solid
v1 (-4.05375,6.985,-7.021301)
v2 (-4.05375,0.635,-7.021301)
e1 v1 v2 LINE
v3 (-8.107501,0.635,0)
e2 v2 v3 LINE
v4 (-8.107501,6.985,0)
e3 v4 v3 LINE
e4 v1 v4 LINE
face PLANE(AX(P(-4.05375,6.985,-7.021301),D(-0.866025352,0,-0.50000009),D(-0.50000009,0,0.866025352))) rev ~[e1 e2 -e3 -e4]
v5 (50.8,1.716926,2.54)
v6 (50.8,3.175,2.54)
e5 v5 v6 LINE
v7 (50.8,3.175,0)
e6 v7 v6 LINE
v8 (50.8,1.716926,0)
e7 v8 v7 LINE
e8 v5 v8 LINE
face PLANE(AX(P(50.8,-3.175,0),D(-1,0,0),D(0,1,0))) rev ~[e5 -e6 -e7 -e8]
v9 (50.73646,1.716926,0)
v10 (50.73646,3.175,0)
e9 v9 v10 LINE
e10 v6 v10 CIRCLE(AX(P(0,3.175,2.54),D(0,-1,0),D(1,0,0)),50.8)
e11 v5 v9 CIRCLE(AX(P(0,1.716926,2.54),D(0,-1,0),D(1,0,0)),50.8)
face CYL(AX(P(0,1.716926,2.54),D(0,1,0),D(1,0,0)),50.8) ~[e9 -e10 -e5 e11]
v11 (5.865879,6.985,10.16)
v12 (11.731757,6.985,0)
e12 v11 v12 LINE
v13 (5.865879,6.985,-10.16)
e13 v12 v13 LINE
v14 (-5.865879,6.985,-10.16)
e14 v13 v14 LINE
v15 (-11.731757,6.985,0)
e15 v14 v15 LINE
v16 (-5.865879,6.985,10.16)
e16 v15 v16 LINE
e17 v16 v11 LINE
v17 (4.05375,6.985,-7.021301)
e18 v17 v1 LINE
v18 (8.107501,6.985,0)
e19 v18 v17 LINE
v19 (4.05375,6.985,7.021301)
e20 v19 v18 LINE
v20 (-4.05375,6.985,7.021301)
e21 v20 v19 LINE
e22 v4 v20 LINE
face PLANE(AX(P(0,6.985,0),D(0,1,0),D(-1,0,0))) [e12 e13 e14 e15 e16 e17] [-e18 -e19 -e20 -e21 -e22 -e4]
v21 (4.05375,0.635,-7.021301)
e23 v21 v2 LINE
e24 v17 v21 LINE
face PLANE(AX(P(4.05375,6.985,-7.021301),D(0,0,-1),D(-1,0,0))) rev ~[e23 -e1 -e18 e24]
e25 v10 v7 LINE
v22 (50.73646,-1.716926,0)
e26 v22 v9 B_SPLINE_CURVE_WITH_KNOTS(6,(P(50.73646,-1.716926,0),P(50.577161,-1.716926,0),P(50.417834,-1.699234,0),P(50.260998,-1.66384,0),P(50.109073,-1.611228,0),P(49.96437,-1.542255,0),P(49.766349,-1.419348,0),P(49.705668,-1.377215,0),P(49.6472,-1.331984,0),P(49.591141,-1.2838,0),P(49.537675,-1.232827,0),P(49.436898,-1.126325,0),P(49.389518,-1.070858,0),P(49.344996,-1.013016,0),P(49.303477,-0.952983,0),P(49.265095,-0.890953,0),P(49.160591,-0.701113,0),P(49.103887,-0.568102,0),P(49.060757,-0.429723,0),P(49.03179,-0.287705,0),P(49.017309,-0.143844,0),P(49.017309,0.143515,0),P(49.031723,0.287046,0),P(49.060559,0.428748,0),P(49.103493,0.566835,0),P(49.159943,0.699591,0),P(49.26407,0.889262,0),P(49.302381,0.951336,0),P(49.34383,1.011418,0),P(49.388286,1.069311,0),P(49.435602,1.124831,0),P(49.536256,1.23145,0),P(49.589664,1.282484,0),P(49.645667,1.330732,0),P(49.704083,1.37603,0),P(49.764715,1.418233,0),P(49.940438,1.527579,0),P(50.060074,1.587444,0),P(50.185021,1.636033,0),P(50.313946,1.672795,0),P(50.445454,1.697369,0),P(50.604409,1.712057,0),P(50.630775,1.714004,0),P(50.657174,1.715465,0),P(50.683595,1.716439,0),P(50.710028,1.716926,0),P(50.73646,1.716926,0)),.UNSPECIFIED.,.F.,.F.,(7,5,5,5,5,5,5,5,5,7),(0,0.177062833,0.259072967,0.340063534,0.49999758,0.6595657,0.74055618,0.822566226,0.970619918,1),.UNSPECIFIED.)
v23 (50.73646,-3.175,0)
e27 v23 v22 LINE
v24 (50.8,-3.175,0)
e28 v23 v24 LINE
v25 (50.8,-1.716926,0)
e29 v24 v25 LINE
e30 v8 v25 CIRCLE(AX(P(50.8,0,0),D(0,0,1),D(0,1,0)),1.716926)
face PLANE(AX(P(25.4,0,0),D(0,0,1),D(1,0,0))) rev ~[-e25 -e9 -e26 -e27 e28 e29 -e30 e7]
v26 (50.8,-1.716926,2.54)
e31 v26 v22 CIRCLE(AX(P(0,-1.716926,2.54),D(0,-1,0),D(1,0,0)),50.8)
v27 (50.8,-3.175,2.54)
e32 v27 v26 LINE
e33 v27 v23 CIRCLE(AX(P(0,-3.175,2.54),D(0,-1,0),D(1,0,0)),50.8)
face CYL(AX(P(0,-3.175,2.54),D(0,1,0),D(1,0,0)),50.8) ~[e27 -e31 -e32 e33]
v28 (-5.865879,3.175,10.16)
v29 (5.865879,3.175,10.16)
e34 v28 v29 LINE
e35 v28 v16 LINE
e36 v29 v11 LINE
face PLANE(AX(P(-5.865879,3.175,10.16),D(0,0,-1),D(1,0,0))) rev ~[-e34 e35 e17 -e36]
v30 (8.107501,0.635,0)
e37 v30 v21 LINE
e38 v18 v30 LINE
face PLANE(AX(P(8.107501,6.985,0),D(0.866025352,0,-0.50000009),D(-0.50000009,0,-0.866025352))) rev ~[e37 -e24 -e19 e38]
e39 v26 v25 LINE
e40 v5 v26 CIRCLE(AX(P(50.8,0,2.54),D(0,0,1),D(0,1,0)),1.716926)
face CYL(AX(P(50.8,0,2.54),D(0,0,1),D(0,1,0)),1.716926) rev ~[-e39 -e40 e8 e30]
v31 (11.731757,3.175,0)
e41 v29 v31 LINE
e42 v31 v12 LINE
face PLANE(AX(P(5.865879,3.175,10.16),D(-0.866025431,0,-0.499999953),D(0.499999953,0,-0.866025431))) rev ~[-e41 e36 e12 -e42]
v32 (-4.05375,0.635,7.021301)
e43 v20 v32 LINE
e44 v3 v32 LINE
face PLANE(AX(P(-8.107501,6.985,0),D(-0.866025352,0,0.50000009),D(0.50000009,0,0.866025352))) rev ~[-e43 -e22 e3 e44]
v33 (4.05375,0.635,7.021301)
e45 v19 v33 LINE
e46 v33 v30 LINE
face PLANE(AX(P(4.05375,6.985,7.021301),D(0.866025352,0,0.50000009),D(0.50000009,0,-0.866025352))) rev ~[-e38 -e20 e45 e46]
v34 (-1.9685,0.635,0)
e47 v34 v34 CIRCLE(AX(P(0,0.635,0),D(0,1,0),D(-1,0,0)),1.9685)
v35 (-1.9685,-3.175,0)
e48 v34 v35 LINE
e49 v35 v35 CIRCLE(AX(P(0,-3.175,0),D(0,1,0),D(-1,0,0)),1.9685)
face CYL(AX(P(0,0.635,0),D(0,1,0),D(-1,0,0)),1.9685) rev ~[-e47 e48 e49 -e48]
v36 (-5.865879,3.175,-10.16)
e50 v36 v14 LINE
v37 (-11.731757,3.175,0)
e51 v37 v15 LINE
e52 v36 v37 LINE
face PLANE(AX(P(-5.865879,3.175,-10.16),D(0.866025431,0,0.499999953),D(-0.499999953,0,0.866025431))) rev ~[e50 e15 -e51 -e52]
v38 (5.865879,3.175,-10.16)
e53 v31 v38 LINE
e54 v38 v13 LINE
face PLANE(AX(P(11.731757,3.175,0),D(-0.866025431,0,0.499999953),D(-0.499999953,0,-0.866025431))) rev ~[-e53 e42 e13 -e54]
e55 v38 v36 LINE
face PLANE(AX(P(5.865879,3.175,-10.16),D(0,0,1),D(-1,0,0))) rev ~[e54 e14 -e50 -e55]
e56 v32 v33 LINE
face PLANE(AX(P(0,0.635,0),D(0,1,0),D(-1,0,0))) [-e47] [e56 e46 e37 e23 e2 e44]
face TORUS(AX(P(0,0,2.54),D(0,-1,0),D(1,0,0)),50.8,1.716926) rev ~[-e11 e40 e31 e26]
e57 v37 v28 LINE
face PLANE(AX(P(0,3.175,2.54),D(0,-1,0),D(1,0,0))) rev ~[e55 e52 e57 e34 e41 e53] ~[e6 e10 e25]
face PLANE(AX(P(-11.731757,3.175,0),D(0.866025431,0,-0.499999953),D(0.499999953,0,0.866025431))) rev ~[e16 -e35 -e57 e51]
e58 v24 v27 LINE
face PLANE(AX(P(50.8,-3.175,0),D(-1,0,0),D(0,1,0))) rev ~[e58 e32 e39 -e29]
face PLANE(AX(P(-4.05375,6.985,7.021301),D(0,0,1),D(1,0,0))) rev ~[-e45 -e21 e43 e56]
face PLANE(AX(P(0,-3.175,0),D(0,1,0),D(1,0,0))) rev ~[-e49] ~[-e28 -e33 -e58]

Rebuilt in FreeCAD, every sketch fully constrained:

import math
import FreeCAD as App
import Part
import Sketcher
from FreeCAD import Vector
Q = App.Units.Quantity


def add_polygon(sketch, points):
    """Adds a closed chain of lines whose ends are joined by coincident constraints."""
    first, n = sketch.GeometryCount, len(points)
    for a, b in zip(points, points[1:] + points[:1]):
        sketch.addGeometry(Part.LineSegment(App.Vector(*a, 0), App.Vector(*b, 0)), False)
    for i in range(n):
        sketch.addConstraint(Sketcher.Constraint("Coincident", first + i, 2, first + (i + 1) % n, 1))

doc = App.newDocument("Part")
body = doc.addObject("PartDesign::Body", "Body")

# Sketch on XY plane
sketch1 = body.newObject("Sketcher::SketchObject", "Sketch")
sketch1.AttachmentSupport = (doc.getObject("XY_Plane"), [""])
sketch1.MapMode = "FlatFace"
add_polygon(sketch1, [(0, 3), (0, -3), (51, -3), (51, 3)])  # lines 0-3
sketch1.addConstraint([
    Sketcher.Constraint("Vertical", 0),
    Sketcher.Constraint("Horizontal", 1),
    Sketcher.Constraint("Vertical", 2),
    Sketcher.Constraint("Horizontal", 3),
    Sketcher.Constraint("Symmetric", 0, 2, 3, 2, -1, 1),
    Sketcher.Constraint("DistanceX", 1, 1, 1, 2, Q("2 in")),
    Sketcher.Constraint("DistanceY", 0, 2, 0, 1, Q("0.25 in")),
])
pad1 = body.newObject("PartDesign::Pad", "Pad")
pad1.Profile = sketch1
pad1.Length = Q("0.1 in")

# Sketch on XY plane
sketch2 = body.newObject("Sketcher::SketchObject", "Sketch001")
sketch2.AttachmentSupport = (doc.getObject("XY_Plane"), [""])
sketch2.MapMode = "FlatFace"
sketch2.AttachmentOffset = App.Placement(Vector(0, 0, 0.1 * 25.4), App.Rotation())
sketch2.addGeometry([
    Part.LineSegment(Vector(50.8, -1.7, 0), Vector(50.8, 1.7, 0)),
    Part.ArcOfCircle(Part.Circle(Vector(50.8, 0, 0), Vector(0, 0, 1), 1.7), math.radians(90), math.radians(270)),
], False)
sketch2.addConstraint([
    Sketcher.Constraint("Coincident", 0, 1, 1, 2),
    Sketcher.Constraint("Coincident", 1, 1, 0, 2),
    Sketcher.Constraint("Vertical", 0),
    Sketcher.Constraint("PointOnObject", 1, 3, -1),
    Sketcher.Constraint("Vertical", 1, 3, 0, 1),
    Sketcher.Constraint("DistanceX", -1, 1, 1, 3, Q("2 in")),
    Sketcher.Constraint("Radius", 1, Q("1.716926 mm")),
])
pocket1 = body.newObject("PartDesign::Pocket", "Pocket")
pocket1.Profile = sketch2
pocket1.Length = Q("0.1 in")

# Sketch on XY plane
sketch3 = body.newObject("Sketcher::SketchObject", "Sketch002")
sketch3.AttachmentSupport = (doc.getObject("XY_Plane"), [""])
sketch3.MapMode = "FlatFace"
sketch3.AttachmentOffset = App.Placement(Vector(0, 0, 0.1 * 25.4), App.Rotation())
sketch3.addGeometry([
    Part.LineSegment(Vector(50.8, 1.7, 0), Vector(50.8, 3.2, 0)),  # 0
    Part.LineSegment(Vector(50.8, 3.2, 0), Vector(0, 3.2, 0)),  # 1
    Part.LineSegment(Vector(0, 3.2, 0), Vector(0, -3.2, 0)),  # 2
    Part.LineSegment(Vector(0, -3.2, 0), Vector(50.8, -3.2, 0)),  # 3
    Part.LineSegment(Vector(50.8, -3.2, 0), Vector(50.8, -1.7, 0)),  # 4
    Part.ArcOfCircle(Part.Circle(Vector(50.8, 0, 0), Vector(0, 0, 1), 1.7), math.radians(90), math.radians(270)),  # 5
], False)
sketch3.addConstraint([
    Sketcher.Constraint("Coincident", 0, 2, 1, 1),
    Sketcher.Constraint("Coincident", 1, 2, 2, 1),
    Sketcher.Constraint("Coincident", 2, 2, 3, 1),
    Sketcher.Constraint("Coincident", 3, 2, 4, 1),
    Sketcher.Constraint("Coincident", 4, 2, 5, 2),
    Sketcher.Constraint("Coincident", 5, 1, 0, 1),
    Sketcher.Constraint("Vertical", 0),
    Sketcher.Constraint("Horizontal", 1),
    Sketcher.Constraint("Vertical", 2),
    Sketcher.Constraint("Horizontal", 3),
    Sketcher.Constraint("Vertical", 4),
    Sketcher.Constraint("Symmetric", 1, 2, 2, 2, -1, 1),
    Sketcher.Constraint("Symmetric", 4, 2, 5, 1, -1),
    Sketcher.Constraint("Vertical", 5, 3, 0, 2),
    Sketcher.Constraint("DistanceX", 1, 2, 1, 1, Q("2 in")),
    Sketcher.Constraint("DistanceY", 2, 2, 2, 1, Q("0.25 in")),
    Sketcher.Constraint("Radius", 5, Q("1.716926 mm")),
])
revolution = body.newObject("PartDesign::Revolution", "Revolution")
revolution.Profile = sketch3
revolution.ReferenceAxis = (sketch3, ["V_Axis"])
revolution.Angle = 360

# Sketch on XZ plane
sketch4 = body.newObject("Sketcher::SketchObject", "Sketch003")
sketch4.AttachmentSupport = (doc.getObject("XZ_Plane"), [""])
sketch4.MapMode = "FlatFace"
sketch4.AttachmentOffset = App.Placement(Vector(0, 0, -0.125 * 25.4), App.Rotation())
add_polygon(sketch4, [(-6, 10), (6, 10), (12, 0), (6, -10), (-6, -10), (-12, 0)])  # lines 0-5
sketch4.addConstraint([
    Sketcher.Constraint("Horizontal", 0),
    Sketcher.Constraint("Horizontal", 3),
    Sketcher.Constraint("Symmetric", 0, 2, 3, 2, -1, 1),
    Sketcher.Constraint("Symmetric", 1, 2, 4, 2, -1, 1),
    Sketcher.Constraint("PointOnObject", 1, 2, -1),
    Sketcher.Constraint("Parallel", 2, 5),
    Sketcher.Constraint("Vertical", 0, 2, 2, 2),
    Sketcher.Constraint("Angle", 1, Q("-60.000003 deg")),
    Sketcher.Constraint("DistanceY", -1, 1, 0, 2, Q("0.4 in")),
    Sketcher.Constraint("DistanceX", 0, 1, 0, 2, Q("11.731758 mm")),
])
pad2 = body.newObject("PartDesign::Pad", "Pad001")
pad2.Profile = sketch4
pad2.Length = Q("0.15 in")
pad2.Reversed = True

# Sketch on XZ plane
sketch5 = body.newObject("Sketcher::SketchObject", "Sketch004")
sketch5.AttachmentSupport = (doc.getObject("XZ_Plane"), [""])
sketch5.MapMode = "FlatFace"
sketch5.AttachmentOffset = App.Placement(Vector(0, 0, -0.275 * 25.4), App.Rotation())
add_polygon(sketch5, [(-4, 7), (4, 7), (8, 0), (4, -7), (-4, -7), (-8, 0)])  # lines 0-5
sketch5.addConstraint([
    Sketcher.Constraint("Horizontal", 0),
    Sketcher.Constraint("Horizontal", 3),
    Sketcher.Constraint("Symmetric", 0, 2, 3, 2, -1, 1),
    Sketcher.Constraint("Symmetric", 1, 2, 4, 2, -1, 1),
    Sketcher.Constraint("PointOnObject", 1, 2, -1),
    Sketcher.Constraint("Parallel", 2, 5),
    Sketcher.Constraint("Vertical", 0, 2, 2, 2),
    Sketcher.Constraint("Angle", 1, Q("-59.999994 deg")),
    Sketcher.Constraint("DistanceX", 0, 1, 0, 2, Q("8.1075 mm")),
    Sketcher.Constraint("Distance", 1, Q("8.107501 mm")),
])
pocket2 = body.newObject("PartDesign::Pocket", "Pocket001")
pocket2.Profile = sketch5
pocket2.Length = Q("0.25 in")
pocket2.Reversed = True

# Sketch on XZ plane
sketch6 = body.newObject("Sketcher::SketchObject", "Sketch005")
sketch6.AttachmentSupport = (doc.getObject("XZ_Plane"), [""])
sketch6.MapMode = "FlatFace"
sketch6.AttachmentOffset = App.Placement(Vector(0, 0, -0.025 * 25.4), App.Rotation())
sketch6.addGeometry(Part.Circle(Vector(0, 0, 0), Vector(0, 0, 1), 2), False)
sketch6.addConstraint([
    Sketcher.Constraint("Coincident", 0, 3, -1, 1),
    Sketcher.Constraint("Diameter", 0, Q("0.155 in")),
])
pocket3 = body.newObject("PartDesign::Pocket", "Pocket002")
pocket3.Profile = sketch6
pocket3.Length = Q("0.25 in")
pocket3.Reversed = True

doc.recompute()
